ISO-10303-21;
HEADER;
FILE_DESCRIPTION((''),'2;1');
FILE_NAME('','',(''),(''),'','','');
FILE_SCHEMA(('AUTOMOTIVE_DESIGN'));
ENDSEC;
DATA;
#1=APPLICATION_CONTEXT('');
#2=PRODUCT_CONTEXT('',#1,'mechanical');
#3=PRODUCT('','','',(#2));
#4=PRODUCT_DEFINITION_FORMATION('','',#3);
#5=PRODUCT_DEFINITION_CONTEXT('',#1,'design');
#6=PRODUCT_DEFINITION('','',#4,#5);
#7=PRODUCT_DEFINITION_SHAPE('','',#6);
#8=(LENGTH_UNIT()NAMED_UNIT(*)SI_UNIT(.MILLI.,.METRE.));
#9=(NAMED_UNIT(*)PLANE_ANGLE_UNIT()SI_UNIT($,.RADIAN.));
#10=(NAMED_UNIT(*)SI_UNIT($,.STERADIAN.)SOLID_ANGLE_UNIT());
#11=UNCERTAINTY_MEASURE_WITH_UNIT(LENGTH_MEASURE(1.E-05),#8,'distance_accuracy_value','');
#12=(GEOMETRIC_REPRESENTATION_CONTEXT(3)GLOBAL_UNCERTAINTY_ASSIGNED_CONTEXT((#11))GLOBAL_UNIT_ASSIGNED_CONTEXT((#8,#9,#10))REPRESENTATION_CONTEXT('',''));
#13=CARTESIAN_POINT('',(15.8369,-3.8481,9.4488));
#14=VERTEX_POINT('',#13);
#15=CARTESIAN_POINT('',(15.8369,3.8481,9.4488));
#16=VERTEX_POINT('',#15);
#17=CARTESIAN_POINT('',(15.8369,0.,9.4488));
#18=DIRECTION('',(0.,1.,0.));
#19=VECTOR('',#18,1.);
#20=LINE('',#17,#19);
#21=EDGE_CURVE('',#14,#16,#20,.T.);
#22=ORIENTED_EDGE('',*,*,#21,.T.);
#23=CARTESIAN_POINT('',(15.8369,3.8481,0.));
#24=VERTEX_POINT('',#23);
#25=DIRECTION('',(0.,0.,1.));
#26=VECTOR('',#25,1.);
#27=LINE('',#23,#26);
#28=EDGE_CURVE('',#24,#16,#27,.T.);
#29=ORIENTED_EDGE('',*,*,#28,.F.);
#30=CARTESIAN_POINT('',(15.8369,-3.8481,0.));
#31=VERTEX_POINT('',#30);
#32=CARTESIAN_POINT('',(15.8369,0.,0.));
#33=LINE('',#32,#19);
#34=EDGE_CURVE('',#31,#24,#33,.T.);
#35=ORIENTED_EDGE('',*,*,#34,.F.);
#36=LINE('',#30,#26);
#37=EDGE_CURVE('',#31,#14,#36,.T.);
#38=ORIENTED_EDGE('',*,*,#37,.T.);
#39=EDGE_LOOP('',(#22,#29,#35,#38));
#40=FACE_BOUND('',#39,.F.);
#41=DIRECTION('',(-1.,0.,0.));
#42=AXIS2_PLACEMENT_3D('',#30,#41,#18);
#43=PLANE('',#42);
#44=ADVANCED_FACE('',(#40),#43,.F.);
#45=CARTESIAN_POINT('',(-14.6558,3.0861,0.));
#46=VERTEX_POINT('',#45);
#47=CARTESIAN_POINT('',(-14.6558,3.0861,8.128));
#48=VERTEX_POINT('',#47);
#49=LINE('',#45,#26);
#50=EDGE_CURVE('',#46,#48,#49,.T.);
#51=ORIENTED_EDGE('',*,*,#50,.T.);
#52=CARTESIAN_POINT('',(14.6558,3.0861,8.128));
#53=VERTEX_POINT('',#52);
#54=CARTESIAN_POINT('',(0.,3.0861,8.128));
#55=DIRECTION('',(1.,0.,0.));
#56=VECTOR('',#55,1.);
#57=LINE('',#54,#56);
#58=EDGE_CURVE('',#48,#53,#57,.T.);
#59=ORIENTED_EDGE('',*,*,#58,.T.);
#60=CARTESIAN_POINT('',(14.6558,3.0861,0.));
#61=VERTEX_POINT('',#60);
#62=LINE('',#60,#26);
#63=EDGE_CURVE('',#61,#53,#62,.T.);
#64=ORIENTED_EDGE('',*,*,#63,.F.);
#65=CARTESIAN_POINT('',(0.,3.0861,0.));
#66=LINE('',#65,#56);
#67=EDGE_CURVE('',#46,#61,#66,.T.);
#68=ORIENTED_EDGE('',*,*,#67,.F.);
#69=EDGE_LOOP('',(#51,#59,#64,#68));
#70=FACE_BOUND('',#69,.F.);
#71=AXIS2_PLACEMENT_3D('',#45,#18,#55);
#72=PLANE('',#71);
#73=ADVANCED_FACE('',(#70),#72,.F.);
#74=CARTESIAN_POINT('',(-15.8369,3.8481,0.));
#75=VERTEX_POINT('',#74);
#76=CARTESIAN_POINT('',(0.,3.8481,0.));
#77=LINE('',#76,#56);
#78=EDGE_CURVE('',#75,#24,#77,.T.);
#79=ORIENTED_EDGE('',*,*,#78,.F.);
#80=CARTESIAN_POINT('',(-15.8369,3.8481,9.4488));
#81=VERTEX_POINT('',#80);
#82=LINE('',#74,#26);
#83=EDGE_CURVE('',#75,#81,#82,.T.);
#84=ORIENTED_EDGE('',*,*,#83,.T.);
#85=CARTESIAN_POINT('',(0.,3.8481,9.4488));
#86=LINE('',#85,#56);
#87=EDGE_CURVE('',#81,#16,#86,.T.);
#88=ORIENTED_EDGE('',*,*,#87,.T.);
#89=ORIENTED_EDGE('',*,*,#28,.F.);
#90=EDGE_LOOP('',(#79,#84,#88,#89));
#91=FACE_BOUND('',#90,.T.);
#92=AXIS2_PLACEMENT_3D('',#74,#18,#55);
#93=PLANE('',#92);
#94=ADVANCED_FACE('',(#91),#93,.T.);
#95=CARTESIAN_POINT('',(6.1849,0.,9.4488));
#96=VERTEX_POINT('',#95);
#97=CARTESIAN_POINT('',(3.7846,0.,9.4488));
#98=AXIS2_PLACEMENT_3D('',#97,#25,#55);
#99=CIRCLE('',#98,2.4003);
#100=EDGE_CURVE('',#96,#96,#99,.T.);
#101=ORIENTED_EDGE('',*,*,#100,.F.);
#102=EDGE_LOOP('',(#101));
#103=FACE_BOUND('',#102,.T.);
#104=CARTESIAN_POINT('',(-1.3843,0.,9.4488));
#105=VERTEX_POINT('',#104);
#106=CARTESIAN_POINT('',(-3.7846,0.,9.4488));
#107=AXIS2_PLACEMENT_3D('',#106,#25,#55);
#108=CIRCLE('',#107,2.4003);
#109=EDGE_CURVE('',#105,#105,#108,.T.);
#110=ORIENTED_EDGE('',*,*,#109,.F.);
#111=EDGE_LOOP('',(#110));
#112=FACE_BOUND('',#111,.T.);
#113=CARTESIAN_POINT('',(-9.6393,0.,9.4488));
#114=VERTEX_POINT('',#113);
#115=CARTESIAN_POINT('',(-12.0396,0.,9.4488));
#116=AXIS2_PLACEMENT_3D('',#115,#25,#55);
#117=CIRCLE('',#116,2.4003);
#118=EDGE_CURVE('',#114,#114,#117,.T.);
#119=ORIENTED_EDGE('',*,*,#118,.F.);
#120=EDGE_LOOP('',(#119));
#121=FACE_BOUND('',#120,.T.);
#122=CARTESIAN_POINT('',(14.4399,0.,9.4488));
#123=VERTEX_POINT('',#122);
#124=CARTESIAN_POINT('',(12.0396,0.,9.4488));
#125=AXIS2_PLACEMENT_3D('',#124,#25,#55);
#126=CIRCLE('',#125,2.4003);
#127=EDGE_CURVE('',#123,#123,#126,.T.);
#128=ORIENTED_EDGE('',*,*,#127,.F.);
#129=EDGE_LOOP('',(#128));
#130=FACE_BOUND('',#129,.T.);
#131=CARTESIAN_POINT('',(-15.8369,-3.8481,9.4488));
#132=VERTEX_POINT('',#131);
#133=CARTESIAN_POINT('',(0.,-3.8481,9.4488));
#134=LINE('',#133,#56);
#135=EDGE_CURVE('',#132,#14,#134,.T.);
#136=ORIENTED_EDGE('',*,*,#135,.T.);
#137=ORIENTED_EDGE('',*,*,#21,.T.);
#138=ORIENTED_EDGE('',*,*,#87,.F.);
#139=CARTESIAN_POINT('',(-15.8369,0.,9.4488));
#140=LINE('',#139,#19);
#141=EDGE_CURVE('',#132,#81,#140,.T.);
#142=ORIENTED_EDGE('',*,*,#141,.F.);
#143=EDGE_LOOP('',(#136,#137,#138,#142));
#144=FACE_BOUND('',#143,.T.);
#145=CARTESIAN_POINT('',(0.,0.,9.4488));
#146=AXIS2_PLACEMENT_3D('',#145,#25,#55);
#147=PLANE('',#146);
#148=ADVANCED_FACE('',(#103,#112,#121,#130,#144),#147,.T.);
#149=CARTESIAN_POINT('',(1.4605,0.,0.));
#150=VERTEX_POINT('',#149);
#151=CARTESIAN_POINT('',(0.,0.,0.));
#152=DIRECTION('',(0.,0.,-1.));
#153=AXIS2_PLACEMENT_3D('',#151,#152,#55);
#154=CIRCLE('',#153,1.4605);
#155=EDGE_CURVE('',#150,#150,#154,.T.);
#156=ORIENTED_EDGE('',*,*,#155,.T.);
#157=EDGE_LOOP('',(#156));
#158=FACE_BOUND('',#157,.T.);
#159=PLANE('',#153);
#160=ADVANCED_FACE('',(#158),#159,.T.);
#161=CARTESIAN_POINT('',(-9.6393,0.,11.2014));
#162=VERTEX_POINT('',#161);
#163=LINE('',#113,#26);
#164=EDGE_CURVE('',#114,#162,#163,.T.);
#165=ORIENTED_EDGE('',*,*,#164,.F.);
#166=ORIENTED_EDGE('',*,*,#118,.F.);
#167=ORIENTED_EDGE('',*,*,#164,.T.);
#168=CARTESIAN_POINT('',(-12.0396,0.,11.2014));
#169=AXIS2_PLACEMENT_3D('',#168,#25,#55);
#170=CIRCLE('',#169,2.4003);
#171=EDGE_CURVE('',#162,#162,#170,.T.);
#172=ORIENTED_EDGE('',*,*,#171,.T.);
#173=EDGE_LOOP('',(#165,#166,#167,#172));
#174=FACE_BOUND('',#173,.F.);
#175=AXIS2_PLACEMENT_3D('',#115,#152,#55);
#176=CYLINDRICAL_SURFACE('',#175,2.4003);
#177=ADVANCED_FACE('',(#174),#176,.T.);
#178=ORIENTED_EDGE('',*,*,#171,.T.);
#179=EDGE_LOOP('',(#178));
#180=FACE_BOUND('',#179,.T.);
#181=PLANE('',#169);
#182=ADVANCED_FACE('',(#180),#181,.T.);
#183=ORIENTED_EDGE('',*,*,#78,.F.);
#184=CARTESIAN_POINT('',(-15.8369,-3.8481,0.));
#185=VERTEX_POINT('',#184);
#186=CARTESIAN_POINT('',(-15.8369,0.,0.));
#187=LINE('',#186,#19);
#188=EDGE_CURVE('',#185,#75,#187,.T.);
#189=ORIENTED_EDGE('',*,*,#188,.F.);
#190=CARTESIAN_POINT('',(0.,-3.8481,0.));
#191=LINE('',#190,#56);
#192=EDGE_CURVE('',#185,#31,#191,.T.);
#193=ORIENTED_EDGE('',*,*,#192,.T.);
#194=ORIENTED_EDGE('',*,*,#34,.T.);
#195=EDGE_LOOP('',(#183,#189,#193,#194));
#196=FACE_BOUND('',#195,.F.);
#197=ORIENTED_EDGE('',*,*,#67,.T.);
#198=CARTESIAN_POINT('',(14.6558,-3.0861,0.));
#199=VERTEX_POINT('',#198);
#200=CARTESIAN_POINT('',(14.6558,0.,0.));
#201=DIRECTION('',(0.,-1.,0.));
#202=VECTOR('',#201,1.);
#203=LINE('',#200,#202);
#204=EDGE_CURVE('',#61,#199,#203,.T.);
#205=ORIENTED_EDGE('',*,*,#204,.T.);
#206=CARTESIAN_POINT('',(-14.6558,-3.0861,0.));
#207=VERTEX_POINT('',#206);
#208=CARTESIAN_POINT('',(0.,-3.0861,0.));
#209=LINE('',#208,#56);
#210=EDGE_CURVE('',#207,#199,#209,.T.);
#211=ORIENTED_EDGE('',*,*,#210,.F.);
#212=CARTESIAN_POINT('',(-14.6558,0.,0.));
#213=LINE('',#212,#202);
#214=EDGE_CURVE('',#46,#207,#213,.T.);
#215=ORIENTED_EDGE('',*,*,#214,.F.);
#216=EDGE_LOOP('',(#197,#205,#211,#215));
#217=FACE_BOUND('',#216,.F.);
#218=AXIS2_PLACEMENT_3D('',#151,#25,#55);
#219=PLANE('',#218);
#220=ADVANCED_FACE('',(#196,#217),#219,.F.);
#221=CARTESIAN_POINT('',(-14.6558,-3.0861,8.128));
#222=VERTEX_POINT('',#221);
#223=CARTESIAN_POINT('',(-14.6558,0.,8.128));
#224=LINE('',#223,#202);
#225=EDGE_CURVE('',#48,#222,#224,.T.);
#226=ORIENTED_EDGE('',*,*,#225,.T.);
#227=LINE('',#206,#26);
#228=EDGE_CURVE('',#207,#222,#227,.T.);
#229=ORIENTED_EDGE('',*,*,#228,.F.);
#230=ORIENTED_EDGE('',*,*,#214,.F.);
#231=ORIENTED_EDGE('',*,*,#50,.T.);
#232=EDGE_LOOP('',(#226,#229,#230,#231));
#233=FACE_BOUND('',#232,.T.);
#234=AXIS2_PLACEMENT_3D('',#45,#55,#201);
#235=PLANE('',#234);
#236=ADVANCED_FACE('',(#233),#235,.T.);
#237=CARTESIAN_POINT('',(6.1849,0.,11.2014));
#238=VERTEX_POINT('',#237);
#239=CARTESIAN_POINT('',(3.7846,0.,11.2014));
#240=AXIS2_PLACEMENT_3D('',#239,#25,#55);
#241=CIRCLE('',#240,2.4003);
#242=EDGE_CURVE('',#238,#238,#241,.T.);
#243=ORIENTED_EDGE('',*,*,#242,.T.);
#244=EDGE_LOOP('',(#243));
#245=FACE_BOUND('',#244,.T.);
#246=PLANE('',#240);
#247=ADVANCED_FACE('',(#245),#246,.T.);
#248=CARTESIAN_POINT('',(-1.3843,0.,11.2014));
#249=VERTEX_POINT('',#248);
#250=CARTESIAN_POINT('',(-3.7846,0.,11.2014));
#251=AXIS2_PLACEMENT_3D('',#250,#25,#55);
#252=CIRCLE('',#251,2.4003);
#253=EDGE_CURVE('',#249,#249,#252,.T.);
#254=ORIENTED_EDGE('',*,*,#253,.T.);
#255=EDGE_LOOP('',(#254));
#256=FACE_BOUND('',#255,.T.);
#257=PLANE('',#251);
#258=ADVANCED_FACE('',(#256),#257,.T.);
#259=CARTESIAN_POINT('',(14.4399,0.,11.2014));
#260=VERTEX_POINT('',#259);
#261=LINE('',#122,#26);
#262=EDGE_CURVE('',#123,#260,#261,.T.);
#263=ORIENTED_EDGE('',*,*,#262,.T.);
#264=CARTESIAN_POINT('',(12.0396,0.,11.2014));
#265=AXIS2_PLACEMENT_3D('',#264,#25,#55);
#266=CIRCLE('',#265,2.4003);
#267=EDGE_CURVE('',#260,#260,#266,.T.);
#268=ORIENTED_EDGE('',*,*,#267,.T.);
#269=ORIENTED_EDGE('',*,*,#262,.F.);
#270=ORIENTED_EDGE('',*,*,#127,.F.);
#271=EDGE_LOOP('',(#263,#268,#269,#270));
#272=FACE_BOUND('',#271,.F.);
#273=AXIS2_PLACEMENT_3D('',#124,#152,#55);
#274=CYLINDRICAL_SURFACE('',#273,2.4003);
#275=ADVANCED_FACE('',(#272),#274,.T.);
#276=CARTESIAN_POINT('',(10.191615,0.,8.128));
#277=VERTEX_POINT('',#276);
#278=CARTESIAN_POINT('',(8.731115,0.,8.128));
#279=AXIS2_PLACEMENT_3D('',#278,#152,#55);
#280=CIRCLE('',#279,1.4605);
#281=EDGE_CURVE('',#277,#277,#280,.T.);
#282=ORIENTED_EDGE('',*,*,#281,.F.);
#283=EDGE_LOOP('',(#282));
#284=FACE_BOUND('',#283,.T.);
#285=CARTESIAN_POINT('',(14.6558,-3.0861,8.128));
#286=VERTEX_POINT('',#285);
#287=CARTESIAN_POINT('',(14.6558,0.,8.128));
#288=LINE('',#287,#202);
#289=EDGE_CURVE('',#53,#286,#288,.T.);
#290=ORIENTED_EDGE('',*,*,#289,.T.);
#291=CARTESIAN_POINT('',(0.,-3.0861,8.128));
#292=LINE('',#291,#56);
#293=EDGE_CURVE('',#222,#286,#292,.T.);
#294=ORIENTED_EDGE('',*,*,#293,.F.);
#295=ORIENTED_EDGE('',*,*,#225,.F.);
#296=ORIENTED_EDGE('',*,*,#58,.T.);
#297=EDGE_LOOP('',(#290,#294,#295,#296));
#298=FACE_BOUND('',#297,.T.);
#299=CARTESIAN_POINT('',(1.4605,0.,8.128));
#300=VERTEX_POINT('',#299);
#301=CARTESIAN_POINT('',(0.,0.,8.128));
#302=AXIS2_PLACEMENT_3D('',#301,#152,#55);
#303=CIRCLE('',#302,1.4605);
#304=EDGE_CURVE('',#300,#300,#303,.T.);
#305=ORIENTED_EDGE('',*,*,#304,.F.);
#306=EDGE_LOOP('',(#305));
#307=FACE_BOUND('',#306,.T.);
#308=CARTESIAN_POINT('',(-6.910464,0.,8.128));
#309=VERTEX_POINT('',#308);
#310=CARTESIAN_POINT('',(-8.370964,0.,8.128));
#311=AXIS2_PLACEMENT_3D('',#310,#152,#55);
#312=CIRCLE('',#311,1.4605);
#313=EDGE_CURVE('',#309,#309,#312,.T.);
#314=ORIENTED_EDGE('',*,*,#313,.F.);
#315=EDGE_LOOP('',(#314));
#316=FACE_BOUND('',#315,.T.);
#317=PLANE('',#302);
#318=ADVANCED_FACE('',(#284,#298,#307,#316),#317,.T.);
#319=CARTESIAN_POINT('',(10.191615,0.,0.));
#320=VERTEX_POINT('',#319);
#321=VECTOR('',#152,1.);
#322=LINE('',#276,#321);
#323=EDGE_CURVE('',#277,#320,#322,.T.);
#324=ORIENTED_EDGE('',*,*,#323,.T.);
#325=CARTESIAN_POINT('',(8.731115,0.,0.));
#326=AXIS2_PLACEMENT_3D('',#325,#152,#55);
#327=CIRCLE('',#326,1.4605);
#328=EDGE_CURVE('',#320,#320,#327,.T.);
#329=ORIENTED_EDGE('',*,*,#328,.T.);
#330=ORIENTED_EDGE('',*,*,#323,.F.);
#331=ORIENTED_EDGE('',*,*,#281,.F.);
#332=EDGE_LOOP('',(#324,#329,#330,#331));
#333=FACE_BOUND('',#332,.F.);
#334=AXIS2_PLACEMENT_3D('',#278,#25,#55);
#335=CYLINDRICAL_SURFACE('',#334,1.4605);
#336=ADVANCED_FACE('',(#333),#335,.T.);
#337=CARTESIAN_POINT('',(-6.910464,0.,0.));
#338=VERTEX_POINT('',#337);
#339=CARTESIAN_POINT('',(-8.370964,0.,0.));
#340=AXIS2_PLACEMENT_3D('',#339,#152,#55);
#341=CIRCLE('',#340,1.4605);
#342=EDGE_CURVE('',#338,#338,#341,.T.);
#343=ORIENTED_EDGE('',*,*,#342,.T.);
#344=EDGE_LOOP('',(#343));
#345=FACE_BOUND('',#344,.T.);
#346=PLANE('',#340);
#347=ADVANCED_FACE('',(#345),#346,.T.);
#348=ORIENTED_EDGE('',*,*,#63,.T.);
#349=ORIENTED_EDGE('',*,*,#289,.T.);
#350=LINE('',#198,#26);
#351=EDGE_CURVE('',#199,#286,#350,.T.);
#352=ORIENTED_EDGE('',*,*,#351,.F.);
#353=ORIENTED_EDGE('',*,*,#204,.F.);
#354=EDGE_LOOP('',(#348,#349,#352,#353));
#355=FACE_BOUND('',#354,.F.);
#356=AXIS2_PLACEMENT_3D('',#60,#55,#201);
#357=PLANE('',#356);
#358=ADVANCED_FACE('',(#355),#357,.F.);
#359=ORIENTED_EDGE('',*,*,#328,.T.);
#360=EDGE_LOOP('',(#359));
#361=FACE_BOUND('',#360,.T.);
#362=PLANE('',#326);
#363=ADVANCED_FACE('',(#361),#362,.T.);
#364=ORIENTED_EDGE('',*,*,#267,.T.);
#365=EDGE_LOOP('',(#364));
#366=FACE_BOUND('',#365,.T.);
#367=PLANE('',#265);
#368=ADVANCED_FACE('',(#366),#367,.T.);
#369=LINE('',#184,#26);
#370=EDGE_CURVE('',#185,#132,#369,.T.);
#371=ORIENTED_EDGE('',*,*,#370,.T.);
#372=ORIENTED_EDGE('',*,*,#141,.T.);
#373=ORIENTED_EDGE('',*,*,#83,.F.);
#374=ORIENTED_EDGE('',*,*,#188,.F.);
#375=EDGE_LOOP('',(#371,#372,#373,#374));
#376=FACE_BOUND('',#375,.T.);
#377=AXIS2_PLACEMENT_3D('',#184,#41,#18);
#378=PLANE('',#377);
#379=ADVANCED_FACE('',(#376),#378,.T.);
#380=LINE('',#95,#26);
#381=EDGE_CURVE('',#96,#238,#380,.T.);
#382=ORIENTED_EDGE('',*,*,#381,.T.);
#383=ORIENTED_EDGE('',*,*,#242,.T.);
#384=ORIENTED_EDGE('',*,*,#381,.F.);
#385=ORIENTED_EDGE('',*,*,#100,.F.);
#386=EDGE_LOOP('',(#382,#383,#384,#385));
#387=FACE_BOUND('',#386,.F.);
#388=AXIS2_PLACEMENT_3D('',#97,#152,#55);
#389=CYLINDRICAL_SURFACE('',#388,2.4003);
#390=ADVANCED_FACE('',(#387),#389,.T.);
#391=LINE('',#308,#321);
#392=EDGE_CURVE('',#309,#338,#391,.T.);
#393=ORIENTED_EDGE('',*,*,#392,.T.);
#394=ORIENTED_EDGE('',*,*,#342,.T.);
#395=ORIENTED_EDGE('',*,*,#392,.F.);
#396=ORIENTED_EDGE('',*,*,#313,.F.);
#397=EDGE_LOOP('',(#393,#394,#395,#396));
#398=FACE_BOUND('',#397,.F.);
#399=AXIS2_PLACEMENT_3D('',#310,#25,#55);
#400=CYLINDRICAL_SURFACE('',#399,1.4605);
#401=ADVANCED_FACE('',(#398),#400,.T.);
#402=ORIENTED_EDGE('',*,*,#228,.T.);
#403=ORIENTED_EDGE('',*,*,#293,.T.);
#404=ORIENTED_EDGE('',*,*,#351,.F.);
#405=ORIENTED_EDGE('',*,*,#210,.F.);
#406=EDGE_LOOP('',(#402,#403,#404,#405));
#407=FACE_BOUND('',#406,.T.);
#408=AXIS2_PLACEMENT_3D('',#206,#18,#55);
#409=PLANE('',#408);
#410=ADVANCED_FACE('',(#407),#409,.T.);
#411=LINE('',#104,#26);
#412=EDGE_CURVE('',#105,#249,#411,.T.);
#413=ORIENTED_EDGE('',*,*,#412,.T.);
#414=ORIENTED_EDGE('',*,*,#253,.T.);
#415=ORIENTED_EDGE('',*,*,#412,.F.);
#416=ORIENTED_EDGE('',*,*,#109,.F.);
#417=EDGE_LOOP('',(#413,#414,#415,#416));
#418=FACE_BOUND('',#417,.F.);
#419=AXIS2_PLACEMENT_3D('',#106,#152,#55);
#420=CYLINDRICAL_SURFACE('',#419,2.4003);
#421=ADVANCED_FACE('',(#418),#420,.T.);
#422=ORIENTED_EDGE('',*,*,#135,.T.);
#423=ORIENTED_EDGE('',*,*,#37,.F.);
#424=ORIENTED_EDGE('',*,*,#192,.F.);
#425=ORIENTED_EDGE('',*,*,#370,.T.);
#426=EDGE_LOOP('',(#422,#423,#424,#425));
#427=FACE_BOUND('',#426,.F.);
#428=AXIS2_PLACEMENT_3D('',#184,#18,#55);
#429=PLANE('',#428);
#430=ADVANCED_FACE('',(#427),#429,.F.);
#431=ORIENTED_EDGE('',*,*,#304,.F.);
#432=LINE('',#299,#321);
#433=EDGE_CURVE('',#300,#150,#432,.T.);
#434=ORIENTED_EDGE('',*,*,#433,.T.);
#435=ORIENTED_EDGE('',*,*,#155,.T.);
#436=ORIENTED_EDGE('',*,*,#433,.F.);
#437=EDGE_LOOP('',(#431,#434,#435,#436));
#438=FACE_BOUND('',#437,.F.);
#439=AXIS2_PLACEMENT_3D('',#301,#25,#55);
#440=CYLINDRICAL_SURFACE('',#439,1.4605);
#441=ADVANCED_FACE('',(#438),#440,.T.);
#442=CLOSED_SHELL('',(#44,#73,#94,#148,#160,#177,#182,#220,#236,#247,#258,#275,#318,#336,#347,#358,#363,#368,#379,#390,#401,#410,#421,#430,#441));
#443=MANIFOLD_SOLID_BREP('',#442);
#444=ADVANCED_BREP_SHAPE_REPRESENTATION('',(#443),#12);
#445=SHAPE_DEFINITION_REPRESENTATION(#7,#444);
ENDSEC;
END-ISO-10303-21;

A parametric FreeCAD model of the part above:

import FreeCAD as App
import Part
import Sketcher

V = App.Vector
Q = App.Units.Quantity

doc = App.newDocument("Part")
body = doc.addObject("PartDesign::Body", "Body")

# Sketch on XY plane
sketch1 = doc.addObject("Sketcher::SketchObject", "Sketch")
body.addObject(sketch1)
sketch1.AttachmentSupport = (doc.XY_Plane, [""])
sketch1.MapMode = "FlatFace"
sketch1.addGeometry(Part.LineSegment(V(-15.8369, 3.8481, 0), V(-15.8369, -3.8481, 0)), False)
sketch1.addGeometry(Part.LineSegment(V(-15.8369, -3.8481, 0), V(15.8369, -3.8481, 0)), False)
sketch1.addGeometry(Part.LineSegment(V(15.8369, -3.8481, 0), V(15.8369, 3.8481, 0)), False)
sketch1.addGeometry(Part.LineSegment(V(15.8369, 3.8481, 0), V(-15.8369, 3.8481, 0)), False)
sketch1.addConstraint(Sketcher.Constraint("Coincident", 0, 2, 1, 1))
sketch1.addConstraint(Sketcher.Constraint("Coincident", 1, 2, 2, 1))
sketch1.addConstraint(Sketcher.Constraint("Coincident", 2, 2, 3, 1))
sketch1.addConstraint(Sketcher.Constraint("Coincident", 3, 2, 0, 1))
sketch1.addConstraint(Sketcher.Constraint("Vertical", 0))
sketch1.addConstraint(Sketcher.Constraint("Horizontal", 1))
sketch1.addConstraint(Sketcher.Constraint("Vertical", 2))
sketch1.addConstraint(Sketcher.Constraint("Horizontal", 3))
sketch1.addConstraint(Sketcher.Constraint("Symmetric", 0, 2, 2, 2, -1, 1))
sketch1.addConstraint(Sketcher.Constraint("DistanceX", 1, 1, 1, 2, Q("1.247 in")))
sketch1.addConstraint(Sketcher.Constraint("DistanceY", 0, 2, 0, 1, Q("0.303 in")))
pad1 = doc.addObject("PartDesign::Pad", "Pad")
body.addObject(pad1)
pad1.Profile = sketch1
pad1.Length = Q("0.372 in")

# Sketch on XY plane
sketch2 = doc.addObject("Sketcher::SketchObject", "Sketch001")
body.addObject(sketch2)
sketch2.AttachmentSupport = (doc.XY_Plane, [""])
sketch2.MapMode = "FlatFace"
sketch2.AttachmentOffset = App.Placement(V(0, 0, 0.372 * 25.4), App.Rotation())
sketch2.addGeometry(Part.Circle(V(-12.0396, 0, 0), V(0, 0, 1), 2.4003), False)
sketch2.addGeometry(Part.Circle(V(-3.7846, 0, 0), V(0, 0, 1), 2.4003), False)
sketch2.addGeometry(Part.Circle(V(3.7846, 0, 0), V(0, 0, 1), 2.4003), False)
sketch2.addGeometry(Part.Circle(V(12.0396, 0, 0), V(0, 0, 1), 2.4003), False)
sketch2.addConstraint(Sketcher.Constraint("Equal", 0, 1))
sketch2.addConstraint(Sketcher.Constraint("Equal", 1, 2))
sketch2.addConstraint(Sketcher.Constraint("Equal", 2, 3))
sketch2.addConstraint(Sketcher.Constraint("Symmetric", 1, 3, 2, 3, -1, 1))
sketch2.addConstraint(Sketcher.Constraint("Symmetric", 0, 3, 3, 3, -1, 1))
sketch2.addConstraint(Sketcher.Constraint("PointOnObject", 0, 3, -1))
sketch2.addConstraint(Sketcher.Constraint("PointOnObject", 1, 3, -1))
sketch2.addConstraint(Sketcher.Constraint("Diameter", 0, Q("0.189 in")))
sketch2.addConstraint(Sketcher.Constraint("DistanceX", 0, 3, -1, 1, Q("0.474 in")))
sketch2.addConstraint(Sketcher.Constraint("DistanceX", 1, 3, -1, 1, Q("0.149 in")))
pad2 = doc.addObject("PartDesign::Pad", "Pad001")
body.addObject(pad2)
pad2.Profile = sketch2
pad2.Length = Q("0.069 in")

# Sketch on XY plane
sketch3 = doc.addObject("Sketcher::SketchObject", "Sketch002")
body.addObject(sketch3)
sketch3.AttachmentSupport = (doc.XY_Plane, [""])
sketch3.MapMode = "FlatFace"
sketch3.addGeometry(Part.LineSegment(V(-14.6558, -3.0861, 0), V(-14.6558, 3.0861, 0)), False)
sketch3.addGeometry(Part.LineSegment(V(-14.6558, 3.0861, 0), V(14.6558, 3.0861, 0)), False)
sketch3.addGeometry(Part.LineSegment(V(14.6558, 3.0861, 0), V(14.6558, -3.0861, 0)), False)
sketch3.addGeometry(Part.LineSegment(V(14.6558, -3.0861, 0), V(-14.6558, -3.0861, 0)), False)
sketch3.addConstraint(Sketcher.Constraint("Coincident", 0, 2, 1, 1))
sketch3.addConstraint(Sketcher.Constraint("Coincident", 1, 2, 2, 1))
sketch3.addConstraint(Sketcher.Constraint("Coincident", 2, 2, 3, 1))
sketch3.addConstraint(Sketcher.Constraint("Coincident", 3, 2, 0, 1))
sketch3.addConstraint(Sketcher.Constraint("Vertical", 0))
sketch3.addConstraint(Sketcher.Constraint("Horizontal", 1))
sketch3.addConstraint(Sketcher.Constraint("Vertical", 2))
sketch3.addConstraint(Sketcher.Constraint("Horizontal", 3))
sketch3.addConstraint(Sketcher.Constraint("Symmetric", 0, 2, 2, 2, -1, 1))
sketch3.addConstraint(Sketcher.Constraint("DistanceX", 1, 1, 1, 2, Q("1.154 in")))
sketch3.addConstraint(Sketcher.Constraint("DistanceY", 0, 1, 0, 2, Q("0.243 in")))
pocket1 = doc.addObject("PartDesign::Pocket", "Pocket")
body.addObject(pocket1)
pocket1.Profile = sketch3
pocket1.Length = Q("0.32 in")
pocket1.Reversed = True

# Sketch on XY plane
sketch4 = doc.addObject("Sketcher::SketchObject", "Sketch003")
body.addObject(sketch4)
sketch4.AttachmentSupport = (doc.XY_Plane, [""])
sketch4.MapMode = "FlatFace"
sketch4.AttachmentOffset = App.Placement(V(0, 0, 0.32 * 25.4), App.Rotation())
sketch4.addGeometry(Part.Circle(V(0, 0, 0), V(0, 0, 1), 1.4605), False)
sketch4.addGeometry(Part.Circle(V(8.731115, 0, 0), V(0, 0, 1), 1.4605), False)
sketch4.addGeometry(Part.Circle(V(-8.370964, 0, 0), V(0, 0, 1), 1.4605), False)
sketch4.addConstraint(Sketcher.Constraint("Coincident", 0, 3, -1, 1))
sketch4.addConstraint(Sketcher.Constraint("Equal", 0, 1))
sketch4.addConstraint(Sketcher.Constraint("Equal", 1, 2))
sketch4.addConstraint(Sketcher.Constraint("PointOnObject", 1, 3, -1))
sketch4.addConstraint(Sketcher.Constraint("PointOnObject", 2, 3, -1))
sketch4.addConstraint(Sketcher.Constraint("Diameter", 0, Q("0.115 in")))
sketch4.addConstraint(Sketcher.Constraint("DistanceX", 2, 3, 1, 3, 17.102079))
sketch4.addConstraint(Sketcher.Constraint("DistanceX", -1, 1, 1, 3, 8.731115))
pad3 = doc.addObject("PartDesign::Pad", "Pad002")
body.addObject(pad3)
pad3.Profile = sketch4
pad3.Length = Q("0.32 in")
pad3.Reversed = True

doc.recompute()
